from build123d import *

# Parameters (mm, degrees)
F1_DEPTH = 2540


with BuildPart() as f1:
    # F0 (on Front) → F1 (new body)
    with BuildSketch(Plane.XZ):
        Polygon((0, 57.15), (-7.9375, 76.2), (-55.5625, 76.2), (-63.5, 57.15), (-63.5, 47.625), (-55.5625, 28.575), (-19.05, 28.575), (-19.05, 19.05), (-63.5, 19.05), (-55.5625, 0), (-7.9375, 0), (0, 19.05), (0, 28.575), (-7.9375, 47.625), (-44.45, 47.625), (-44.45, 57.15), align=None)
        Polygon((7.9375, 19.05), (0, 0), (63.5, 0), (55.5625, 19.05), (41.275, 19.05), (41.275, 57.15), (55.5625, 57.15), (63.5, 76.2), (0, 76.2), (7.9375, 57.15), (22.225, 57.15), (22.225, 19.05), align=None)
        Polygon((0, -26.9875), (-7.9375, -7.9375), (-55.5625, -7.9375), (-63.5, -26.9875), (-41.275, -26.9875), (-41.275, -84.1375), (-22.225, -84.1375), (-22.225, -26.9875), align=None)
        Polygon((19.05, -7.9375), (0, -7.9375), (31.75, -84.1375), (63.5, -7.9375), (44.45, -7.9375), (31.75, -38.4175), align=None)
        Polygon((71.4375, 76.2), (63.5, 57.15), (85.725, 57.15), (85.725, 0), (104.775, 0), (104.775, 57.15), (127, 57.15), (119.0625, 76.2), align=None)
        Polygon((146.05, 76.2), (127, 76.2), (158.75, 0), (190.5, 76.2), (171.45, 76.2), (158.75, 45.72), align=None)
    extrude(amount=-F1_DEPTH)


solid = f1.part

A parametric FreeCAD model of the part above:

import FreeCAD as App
import Part
import Sketcher
from FreeCAD import Vector
Q = App.Units.Quantity

doc = App.newDocument("Part")
body = doc.addObject("PartDesign::Body", "Body")
body.AllowCompound = True

# Sketch on XZ plane
sketch1 = body.newObject("Sketcher::SketchObject", "Sketch")
sketch1.AttachmentSupport = (doc.getObject("XZ_Plane"), [""])
sketch1.MapMode = "FlatFace"
sketch1.addGeometry(Part.LineSegment(Vector(0, 57.15, 0), Vector(-7.9375, 76.2, 0)), False)
sketch1.addGeometry(Part.LineSegment(Vector(-7.9375, 76.2, 0), Vector(-55.5625, 76.2, 0)), False)
sketch1.addGeometry(Part.LineSegment(Vector(-55.5625, 76.2, 0), Vector(-63.5, 57.15, 0)), False)
sketch1.addGeometry(Part.LineSegment(Vector(-63.5, 57.15, 0), Vector(-63.5, 47.625, 0)), False)
sketch1.addGeometry(Part.LineSegment(Vector(-63.5, 47.625, 0), Vector(-55.5625, 28.575, 0)), False)
sketch1.addGeometry(Part.LineSegment(Vector(-55.5625, 28.575, 0), Vector(-19.05, 28.575, 0)), False)
sketch1.addGeometry(Part.LineSegment(Vector(-19.05, 28.575, 0), Vector(-19.05, 19.05, 0)), False)
sketch1.addGeometry(Part.LineSegment(Vector(-19.05, 19.05, 0), Vector(-63.5, 19.05, 0)), False)
sketch1.addGeometry(Part.LineSegment(Vector(-63.5, 19.05, 0), Vector(-55.5625, 0, 0)), False)
sketch1.addGeometry(Part.LineSegment(Vector(-55.5625, 0, 0), Vector(-7.9375, 0, 0)), False)
sketch1.addGeometry(Part.LineSegment(Vector(-7.9375, 0, 0), Vector(0, 19.05, 0)), False)
sketch1.addGeometry(Part.LineSegment(Vector(0, 19.05, 0), Vector(0, 28.575, 0)), False)
sketch1.addGeometry(Part.LineSegment(Vector(0, 28.575, 0), Vector(-7.9375, 47.625, 0)), False)
sketch1.addGeometry(Part.LineSegment(Vector(-7.9375, 47.625, 0), Vector(-44.45, 47.625, 0)), False)
sketch1.addGeometry(Part.LineSegment(Vector(-44.45, 47.625, 0), Vector(-44.45, 57.15, 0)), False)
sketch1.addGeometry(Part.LineSegment(Vector(-44.45, 57.15, 0), Vector(0, 57.15, 0)), False)
sketch1.addGeometry(Part.LineSegment(Vector(7.9375, 19.05, 0), Vector(0, 0, 0)), False)
sketch1.addGeometry(Part.LineSegment(Vector(0, 0, 0), Vector(63.5, 0, 0)), False)
sketch1.addGeometry(Part.LineSegment(Vector(63.5, 0, 0), Vector(55.5625, 19.05, 0)), False)
sketch1.addGeometry(Part.LineSegment(Vector(55.5625, 19.05, 0), Vector(41.275, 19.05, 0)), False)
sketch1.addGeometry(Part.LineSegment(Vector(41.275, 19.05, 0), Vector(41.275, 57.15, 0)), False)
sketch1.addGeometry(Part.LineSegment(Vector(41.275, 57.15, 0), Vector(55.5625, 57.15, 0)), False)
sketch1.addGeometry(Part.LineSegment(Vector(55.5625, 57.15, 0), Vector(63.5, 76.2, 0)), False)
sketch1.addGeometry(Part.LineSegment(Vector(63.5, 76.2, 0), Vector(0, 76.2, 0)), False)
sketch1.addGeometry(Part.LineSegment(Vector(0, 76.2, 0), Vector(7.9375, 57.15, 0)), False)
sketch1.addGeometry(Part.LineSegment(Vector(7.9375, 57.15, 0), Vector(22.225, 57.15, 0)), False)
sketch1.addGeometry(Part.LineSegment(Vector(22.225, 57.15, 0), Vector(22.225, 19.05, 0)), False)
sketch1.addGeometry(Part.LineSegment(Vector(22.225, 19.05, 0), Vector(7.9375, 19.05, 0)), False)
sketch1.addGeometry(Part.LineSegment(Vector(0, -26.9875, 0), Vector(-7.9375, -7.9375, 0)), False)
sketch1.addGeometry(Part.LineSegment(Vector(-7.9375, -7.9375, 0), Vector(-55.5625, -7.9375, 0)), False)
sketch1.addGeometry(Part.LineSegment(Vector(-55.5625, -7.9375, 0), Vector(-63.5, -26.9875, 0)), False)
sketch1.addGeometry(Part.LineSegment(Vector(-63.5, -26.9875, 0), Vector(-41.275, -26.9875, 0)), False)
sketch1.addGeometry(Part.LineSegment(Vector(-41.275, -26.9875, 0), Vector(-41.275, -84.1375, 0)), False)
sketch1.addGeometry(Part.LineSegment(Vector(-41.275, -84.1375, 0), Vector(-22.225, -84.1375, 0)), False)
sketch1.addGeometry(Part.LineSegment(Vector(-22.225, -84.1375, 0), Vector(-22.225, -26.9875, 0)), False)
sketch1.addGeometry(Part.LineSegment(Vector(-22.225, -26.9875, 0), Vector(0, -26.9875, 0)), False)
sketch1.addGeometry(Part.LineSegment(Vector(19.05, -7.9375, 0), Vector(0, -7.9375, 0)), False)
sketch1.addGeometry(Part.LineSegment(Vector(0, -7.9375, 0), Vector(31.75, -84.1375, 0)), False)
sketch1.addGeometry(Part.LineSegment(Vector(31.75, -84.1375, 0), Vector(63.5, -7.9375, 0)), False)
sketch1.addGeometry(Part.LineSegment(Vector(63.5, -7.9375, 0), Vector(44.45, -7.9375, 0)), False)
sketch1.addGeometry(Part.LineSegment(Vector(44.45, -7.9375, 0), Vector(31.75, -38.4175, 0)), False)
sketch1.addGeometry(Part.LineSegment(Vector(31.75, -38.4175, 0), Vector(19.05, -7.9375, 0)), False)
sketch1.addGeometry(Part.LineSegment(Vector(71.4375, 76.2, 0), Vector(63.5, 57.15, 0)), False)
sketch1.addGeometry(Part.LineSegment(Vector(63.5, 57.15, 0), Vector(85.725, 57.15, 0)), False)
sketch1.addGeometry(Part.LineSegment(Vector(85.725, 57.15, 0), Vector(85.725, 0, 0)), False)
sketch1.addGeometry(Part.LineSegment(Vector(85.725, 0, 0), Vector(104.775, 0, 0)), False)
sketch1.addGeometry(Part.LineSegment(Vector(104.775, 0, 0), Vector(104.775, 57.15, 0)), False)
sketch1.addGeometry(Part.LineSegment(Vector(104.775, 57.15, 0), Vector(127, 57.15, 0)), False)
sketch1.addGeometry(Part.LineSegment(Vector(127, 57.15, 0), Vector(119.0625, 76.2, 0)), False)
sketch1.addGeometry(Part.LineSegment(Vector(119.0625, 76.2, 0), Vector(71.4375, 76.2, 0)), False)
sketch1.addGeometry(Part.LineSegment(Vector(146.05, 76.2, 0), Vector(127, 76.2, 0)), False)
sketch1.addGeometry(Part.LineSegment(Vector(127, 76.2, 0), Vector(158.75, 0, 0)), False)
sketch1.addGeometry(Part.LineSegment(Vector(158.75, 0, 0), Vector(190.5, 76.2, 0)), False)
sketch1.addGeometry(Part.LineSegment(Vector(190.5, 76.2, 0), Vector(171.45, 76.2, 0)), False)
sketch1.addGeometry(Part.LineSegment(Vector(171.45, 76.2, 0), Vector(158.75, 45.72, 0)), False)
sketch1.addGeometry(Part.LineSegment(Vector(158.75, 45.72, 0), Vector(146.05, 76.2, 0)), False)
sketch1.addConstraint(Sketcher.Constraint("Coincident", 0, 2, 1, 1))
sketch1.addConstraint(Sketcher.Constraint("Coincident", 1, 2, 2, 1))
sketch1.addConstraint(Sketcher.Constraint("Coincident", 2, 2, 3, 1))
sketch1.addConstraint(Sketcher.Constraint("Coincident", 3, 2, 4, 1))
sketch1.addConstraint(Sketcher.Constraint("Coincident", 4, 2, 5, 1))
sketch1.addConstraint(Sketcher.Constraint("Coincident", 5, 2, 6, 1))
sketch1.addConstraint(Sketcher.Constraint("Coincident", 6, 2, 7, 1))
sketch1.addConstraint(Sketcher.Constraint("Coincident", 7, 2, 8, 1))
sketch1.addConstraint(Sketcher.Constraint("Coincident", 8, 2, 9, 1))
sketch1.addConstraint(Sketcher.Constraint("Coincident", 9, 2, 10, 1))
sketch1.addConstraint(Sketcher.Constraint("Coincident", 10, 2, 11, 1))
sketch1.addConstraint(Sketcher.Constraint("Coincident", 11, 2, 12, 1))
sketch1.addConstraint(Sketcher.Constraint("Coincident", 12, 2, 13, 1))
sketch1.addConstraint(Sketcher.Constraint("Coincident", 13, 2, 14, 1))
sketch1.addConstraint(Sketcher.Constraint("Coincident", 14, 2, 15, 1))
sketch1.addConstraint(Sketcher.Constraint("Coincident", 15, 2, 0, 1))
sketch1.addConstraint(Sketcher.Constraint("Coincident", 16, 2, 17, 1))
sketch1.addConstraint(Sketcher.Constraint("Coincident", 17, 2, 18, 1))
sketch1.addConstraint(Sketcher.Constraint("Coincident", 18, 2, 19, 1))
sketch1.addConstraint(Sketcher.Constraint("Coincident", 19, 2, 20, 1))
sketch1.addConstraint(Sketcher.Constraint("Coincident", 20, 2, 21, 1))
sketch1.addConstraint(Sketcher.Constraint("Coincident", 21, 2, 22, 1))
sketch1.addConstraint(Sketcher.Constraint("Coincident", 22, 2, 23, 1))
sketch1.addConstraint(Sketcher.Constraint("Coincident", 23, 2, 24, 1))
sketch1.addConstraint(Sketcher.Constraint("Coincident", 24, 2, 25, 1))
sketch1.addConstraint(Sketcher.Constraint("Coincident", 25, 2, 26, 1))
sketch1.addConstraint(Sketcher.Constraint("Coincident", 26, 2, 27, 1))
sketch1.addConstraint(Sketcher.Constraint("Coincident", 27, 2, 16, 1))
sketch1.addConstraint(Sketcher.Constraint("Coincident", 28, 2, 29, 1))
sketch1.addConstraint(Sketcher.Constraint("Coincident", 29, 2, 30, 1))
sketch1.addConstraint(Sketcher.Constraint("Coincident", 30, 2, 31, 1))
sketch1.addConstraint(Sketcher.Constraint("Coincident", 31, 2, 32, 1))
sketch1.addConstraint(Sketcher.Constraint("Coincident", 32, 2, 33, 1))
sketch1.addConstraint(Sketcher.Constraint("Coincident", 33, 2, 34, 1))
sketch1.addConstraint(Sketcher.Constraint("Coincident", 34, 2, 35, 1))
sketch1.addConstraint(Sketcher.Constraint("Coincident", 35, 2, 28, 1))
sketch1.addConstraint(Sketcher.Constraint("Coincident", 36, 2, 37, 1))
sketch1.addConstraint(Sketcher.Constraint("Coincident", 37, 2, 38, 1))
sketch1.addConstraint(Sketcher.Constraint("Coincident", 38, 2, 39, 1))
sketch1.addConstraint(Sketcher.Constraint("Coincident", 39, 2, 40, 1))
sketch1.addConstraint(Sketcher.Constraint("Coincident", 40, 2, 41, 1))
sketch1.addConstraint(Sketcher.Constraint("Coincident", 41, 2, 36, 1))
sketch1.addConstraint(Sketcher.Constraint("Coincident", 42, 2, 43, 1))
sketch1.addConstraint(Sketcher.Constraint("Coincident", 43, 2, 44, 1))
sketch1.addConstraint(Sketcher.Constraint("Coincident", 44, 2, 45, 1))
sketch1.addConstraint(Sketcher.Constraint("Coincident", 45, 2, 46, 1))
sketch1.addConstraint(Sketcher.Constraint("Coincident", 46, 2, 47, 1))
sketch1.addConstraint(Sketcher.Constraint("Coincident", 47, 2, 48, 1))
sketch1.addConstraint(Sketcher.Constraint("Coincident", 48, 2, 49, 1))
sketch1.addConstraint(Sketcher.Constraint("Coincident", 49, 2, 42, 1))
sketch1.addConstraint(Sketcher.Constraint("Coincident", 50, 2, 51, 1))
sketch1.addConstraint(Sketcher.Constraint("Coincident", 51, 2, 52, 1))
sketch1.addConstraint(Sketcher.Constraint("Coincident", 52, 2, 53, 1))
sketch1.addConstraint(Sketcher.Constraint("Coincident", 53, 2, 54, 1))
sketch1.addConstraint(Sketcher.Constraint("Coincident", 54, 2, 55, 1))
sketch1.addConstraint(Sketcher.Constraint("Coincident", 55, 2, 50, 1))
sketch1.addConstraint(Sketcher.Constraint("Horizontal", 1))
sketch1.addConstraint(Sketcher.Constraint("Vertical", 3))
sketch1.addConstraint(Sketcher.Constraint("Horizontal", 5))
sketch1.addConstraint(Sketcher.Constraint("Vertical", 6))
sketch1.addConstraint(Sketcher.Constraint("Horizontal", 7))
sketch1.addConstraint(Sketcher.Constraint("Horizontal", 9))
sketch1.addConstraint(Sketcher.Constraint("Vertical", 11))
sketch1.addConstraint(Sketcher.Constraint("Horizontal", 13))
sketch1.addConstraint(Sketcher.Constraint("Vertical", 14))
sketch1.addConstraint(Sketcher.Constraint("Horizontal", 15))
sketch1.addConstraint(Sketcher.Constraint("Horizontal", 17))
sketch1.addConstraint(Sketcher.Constraint("Horizontal", 19))
sketch1.addConstraint(Sketcher.Constraint("Vertical", 20))
sketch1.addConstraint(Sketcher.Constraint("Horizontal", 21))
sketch1.addConstraint(Sketcher.Constraint("Horizontal", 23))
sketch1.addConstraint(Sketcher.Constraint("Horizontal", 25))
sketch1.addConstraint(Sketcher.Constraint("Vertical", 26))
sketch1.addConstraint(Sketcher.Constraint("Horizontal", 27))
sketch1.addConstraint(Sketcher.Constraint("Horizontal", 29))
sketch1.addConstraint(Sketcher.Constraint("Horizontal", 31))
sketch1.addConstraint(Sketcher.Constraint("Vertical", 32))
sketch1.addConstraint(Sketcher.Constraint("Horizontal", 33))
sketch1.addConstraint(Sketcher.Constraint("Vertical", 34))
sketch1.addConstraint(Sketcher.Constraint("Horizontal", 35))
sketch1.addConstraint(Sketcher.Constraint("Horizontal", 36))
sketch1.addConstraint(Sketcher.Constraint("Horizontal", 39))
sketch1.addConstraint(Sketcher.Constraint("Horizontal", 43))
sketch1.addConstraint(Sketcher.Constraint("Vertical", 44))
sketch1.addConstraint(Sketcher.Constraint("Horizontal", 45))
sketch1.addConstraint(Sketcher.Constraint("Vertical", 46))
sketch1.addConstraint(Sketcher.Constraint("Horizontal", 47))
sketch1.addConstraint(Sketcher.Constraint("Horizontal", 49))
sketch1.addConstraint(Sketcher.Constraint("Horizontal", 50))
sketch1.addConstraint(Sketcher.Constraint("Horizontal", 53))
sketch1.addConstraint(Sketcher.Constraint("Coincident", 16, 2, -1, 1))
sketch1.addConstraint(Sketcher.Constraint("Symmetric", 2, 2, 42, 2, -2))
sketch1.addConstraint(Sketcher.Constraint("PointOnObject", 8, 2, -1))
sketch1.addConstraint(Sketcher.Constraint("PointOnObject", 10, 2, -2))
sketch1.addConstraint(Sketcher.Constraint("PointOnObject", 15, 2, -2))
sketch1.addConstraint(Sketcher.Constraint("PointOnObject", 23, 2, -2))
sketch1.addConstraint(Sketcher.Constraint("PointOnObject", 35, 2, -2))
sketch1.addConstraint(Sketcher.Constraint("PointOnObject", 36, 2, -2))
sketch1.addConstraint(Sketcher.Constraint("PointOnObject", 44, 2, -1))
sketch1.addConstraint(Sketcher.Constraint("PointOnObject", 51, 2, -1))
sketch1.addConstraint(Sketcher.Constraint("Parallel", 0, 4))
sketch1.addConstraint(Sketcher.Constraint("Parallel", 4, 8))
sketch1.addConstraint(Sketcher.Constraint("Parallel", 2, 10))
sketch1.addConstraint(Sketcher.Constraint("Parallel", 8, 12))
sketch1.addConstraint(Sketcher.Constraint("Parallel", 10, 16))
sketch1.addConstraint(Sketcher.Constraint("Parallel", 12, 18))
sketch1.addConstraint(Sketcher.Constraint("Parallel", 16, 22))
sketch1.addConstraint(Sketcher.Constraint("Parallel", 18, 24))
sketch1.addConstraint(Sketcher.Constraint("Parallel", 24, 28))
sketch1.addConstraint(Sketcher.Constraint("Parallel", 22, 30))
sketch1.addConstraint(Sketcher.Constraint("Parallel", 28, 37))
sketch1.addConstraint(Sketcher.Constraint("Parallel", 30, 38))
sketch1.addConstraint(Sketcher.Constraint("Parallel", 38, 40))
sketch1.addConstraint(Sketcher.Constraint("Parallel", 37, 41))
sketch1.addConstraint(Sketcher.Constraint("Parallel", 40, 42))
sketch1.addConstraint(Sketcher.Constraint("Parallel", 41, 48))
sketch1.addConstraint(Sketcher.Constraint("Parallel", 48, 51))
sketch1.addConstraint(Sketcher.Constraint("Parallel", 42, 52))
sketch1.addConstraint(Sketcher.Constraint("Parallel", 52, 54))
sketch1.addConstraint(Sketcher.Constraint("Parallel", 51, 55))
sketch1.addConstraint(Sketcher.Constraint("Horizontal", 7, 2, 10, 2))
sketch1.addConstraint(Sketcher.Constraint("Horizontal", 5, 2, 11, 2))
sketch1.addConstraint(Sketcher.Constraint("Horizontal", 3, 2, 12, 2))
sketch1.addConstraint(Sketcher.Constraint("Horizontal", 2, 2, 14, 2))
sketch1.addConstraint(Sketcher.Constraint("Horizontal", 10, 2, 18, 2))
sketch1.addConstraint(Sketcher.Constraint("Horizontal", 15, 2, 20, 2))
sketch1.addConstraint(Sketcher.Constraint("Horizontal", 1, 2, 22, 2))
sketch1.addConstraint(Sketcher.Constraint("Horizontal", 21, 2, 24, 2))
sketch1.addConstraint(Sketcher.Constraint("Horizontal", 19, 2, 26, 2))
sketch1.addConstraint(Sketcher.Constraint("Horizontal", 31, 2, 34, 2))
sketch1.addConstraint(Sketcher.Constraint("Horizontal", 29, 2, 36, 2))
sketch1.addConstraint(Sketcher.Constraint("Horizontal", 33, 2, 37, 2))
sketch1.addConstraint(Sketcher.Constraint("Horizontal", 36, 2, 38, 2))
sketch1.addConstraint(Sketcher.Constraint("Horizontal", 43, 2, 46, 2))
sketch1.addConstraint(Sketcher.Constraint("Horizontal", 23, 2, 48, 2))
sketch1.addConstraint(Sketcher.Constraint("Horizontal", 49, 2, 50, 2))
sketch1.addConstraint(Sketcher.Constraint("Horizontal", 50, 2, 52, 2))
sketch1.addConstraint(Sketcher.Constraint("Vertical", 1, 2, 4, 2))
sketch1.addConstraint(Sketcher.Constraint("Vertical", 3, 2, 7, 2))
sketch1.addConstraint(Sketcher.Constraint("Vertical", 4, 2, 8, 2))
sketch1.addConstraint(Sketcher.Constraint("Vertical", 0, 2, 9, 2))
sketch1.addConstraint(Sketcher.Constraint("Vertical", 18, 2, 21, 2))
sketch1.addConstraint(Sketcher.Constraint("Vertical", 12, 2, 28, 2))
sketch1.addConstraint(Sketcher.Constraint("Vertical", 8, 2, 29, 2))
sketch1.addConstraint(Sketcher.Constraint("Vertical", 22, 2, 38, 2))
sketch1.addConstraint(Sketcher.Constraint("Vertical", 37, 2, 40, 2))
sketch1.addConstraint(Sketcher.Constraint("Vertical", 38, 2, 42, 2))
sketch1.addConstraint(Sketcher.Constraint("Vertical", 47, 2, 50, 2))
sketch1.addConstraint(Sketcher.Constraint("Vertical", 51, 2, 54, 2))
sketch1.addConstraint(Sketcher.Constraint("Equal", 5, 13))
sketch1.addConstraint(Sketcher.Constraint("Equal", 21, 25))
sketch1.addConstraint(Sketcher.Constraint("Equal", 31, 35))
sketch1.addConstraint(Sketcher.Constraint("Equal", 33, 36))
sketch1.addConstraint(Sketcher.Constraint("Equal", 35, 43))
sketch1.addConstraint(Sketcher.Constraint("Equal", 39, 45))
sketch1.addConstraint(Sketcher.Constraint("Equal", 43, 47))
sketch1.addConstraint(Sketcher.Constraint("Equal", 45, 50))
sketch1.addConstraint(Sketcher.Constraint("Equal", 3, 6))
sketch1.addConstraint(Sketcher.Constraint("Equal", 34, 44))
sketch1.addConstraint(Sketcher.Constraint("DistanceX", 17, 1, 17, 2, Q("2.5 in")))
sketch1.addConstraint(Sketcher.Constraint("DistanceY", 20, 1, 20, 2, Q("1.5 in")))
sketch1.addConstraint(Sketcher.Constraint("DistanceY", -1, 1, 0, 2, Q("3 in")))
sketch1.addConstraint(Sketcher.Constraint("DistanceX", 13, 2, 5, 2, Q("1 in")))
sketch1.addConstraint(Sketcher.Constraint("DistanceX", 41, 2, 39, 2, Q("1 in")))
sketch1.addConstraint(Sketcher.Constraint("DistanceX", 19, 2, 19, 1, Q("0.5625 in")))
sketch1.addConstraint(Sketcher.Constraint("DistanceY", 28, 2, -1, 1, Q("0.3125 in")))
pad1 = body.newObject("PartDesign::Pad", "Pad")
pad1.Profile = sketch1
pad1.Length = Q("100 in")
pad1.Reversed = True

doc.recompute()
